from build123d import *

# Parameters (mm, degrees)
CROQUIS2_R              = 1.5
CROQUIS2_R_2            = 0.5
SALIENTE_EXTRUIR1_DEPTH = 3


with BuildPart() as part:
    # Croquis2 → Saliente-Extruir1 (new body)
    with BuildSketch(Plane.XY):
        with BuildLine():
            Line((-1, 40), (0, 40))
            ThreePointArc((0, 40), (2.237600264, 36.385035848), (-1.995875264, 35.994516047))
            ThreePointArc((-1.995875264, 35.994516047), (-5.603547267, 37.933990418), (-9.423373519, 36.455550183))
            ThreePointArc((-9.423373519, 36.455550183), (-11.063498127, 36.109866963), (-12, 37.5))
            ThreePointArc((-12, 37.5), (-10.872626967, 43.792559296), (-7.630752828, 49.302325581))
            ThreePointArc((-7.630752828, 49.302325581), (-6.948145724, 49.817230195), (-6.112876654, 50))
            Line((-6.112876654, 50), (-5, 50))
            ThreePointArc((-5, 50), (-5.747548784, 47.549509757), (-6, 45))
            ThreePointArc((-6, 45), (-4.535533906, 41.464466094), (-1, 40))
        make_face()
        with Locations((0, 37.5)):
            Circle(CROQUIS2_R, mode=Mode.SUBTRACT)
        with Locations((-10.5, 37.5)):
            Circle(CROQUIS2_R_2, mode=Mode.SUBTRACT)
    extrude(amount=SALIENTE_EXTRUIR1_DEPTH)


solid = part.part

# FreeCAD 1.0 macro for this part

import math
import FreeCAD as App
import Part
import Sketcher
from FreeCAD import Vector
Q = App.Units.Quantity

doc = App.newDocument("Part")
body = doc.addObject("PartDesign::Body", "Body")

sketch1 = body.newObject("Sketcher::SketchObject", "Sketch")
sketch1.AttachmentSupport = (doc.getObject("XY_Plane"), [""])
sketch1.MapMode = "FlatFace"
sketch1.addGeometry(Part.LineSegment(Vector(0, 40, 0), Vector(-1, 40, 0)), False)
sketch1.addGeometry(Part.ArcOfCircle(Part.Circle(Vector(-1, 45, 0), Vector(0, 0, 1), 5), math.radians(180), math.radians(270)), False)
sketch1.addGeometry(Part.ArcOfCircle(Part.Circle(Vector(7, 45, 0), Vector(0, 0, 1), 13), math.radians(157), math.radians(180)), False)
sketch1.addGeometry(Part.LineSegment(Vector(-5, 50, 0), Vector(-6.1, 50, 0)), False)
sketch1.addGeometry(Part.ArcOfCircle(Part.Circle(Vector(-6.1, 48, 0), Vector(0, 0, 1), 2), math.radians(90), math.radians(139)), False)
sketch1.addGeometry(Part.ArcOfCircle(Part.Circle(Vector(6.1, 37.5, 0), Vector(0, 0, 1), 18.1), math.radians(139), math.radians(180)), False)
sketch1.addGeometry(Part.ArcOfCircle(Part.Circle(Vector(-10.5, 37.5, 0), Vector(0, 0, 1), 1.5), math.radians(180), math.radians(316)), False)
sketch1.addGeometry(Part.ArcOfCircle(Part.Circle(Vector(-5.9, 33, 0), Vector(0, 0, 1), 4.9), math.radians(37), math.radians(136)), False)
sketch1.addGeometry(Part.ArcOfCircle(Part.Circle(Vector(0, 37.5, 0), Vector(0, 0, 1), 2.5), math.radians(-143), math.radians(90)), False)
sketch1.addGeometry(Part.Circle(Vector(0, 37.5, 0), Vector(0, 0, 1), 1.5), False)
sketch1.addGeometry(Part.Circle(Vector(-10.5, 37.5, 0), Vector(0, 0, 1), 0.5), False)
sketch1.addConstraint(Sketcher.Constraint("Tangent", 0, 2, 1, 2))
sketch1.addConstraint(Sketcher.Constraint("Tangent", 1, 1, 2, 2))
sketch1.addConstraint(Sketcher.Constraint("Coincident", 2, 1, 3, 1))
sketch1.addConstraint(Sketcher.Constraint("Tangent", 3, 2, 4, 1))
sketch1.addConstraint(Sketcher.Constraint("Tangent", 4, 2, 5, 1))
sketch1.addConstraint(Sketcher.Constraint("Tangent", 5, 2, 6, 1))
sketch1.addConstraint(Sketcher.Constraint("Tangent", 6, 2, 7, 2))
sketch1.addConstraint(Sketcher.Constraint("Tangent", 7, 1, 8, 1))
sketch1.addConstraint(Sketcher.Constraint("Tangent", 8, 2, 0, 1))
sketch1.addConstraint(Sketcher.Constraint("Horizontal", 0))
sketch1.addConstraint(Sketcher.Constraint("Horizontal", 3))
sketch1.addConstraint(Sketcher.Constraint("Coincident", 9, 3, 8, 3))
sketch1.addConstraint(Sketcher.Constraint("Coincident", 10, 3, 6, 3))
sketch1.addConstraint(Sketcher.Constraint("Equal", 6, 9))
sketch1.addConstraint(Sketcher.Constraint("PointOnObject", 8, 3, -2))
sketch1.addConstraint(Sketcher.Constraint("Horizontal", 1, 3, 2, 3))
sketch1.addConstraint(Sketcher.Constraint("Horizontal", 5, 3, 6, 3))
sketch1.addConstraint(Sketcher.Constraint("Horizontal", 6, 3, 8, 3))
sketch1.addConstraint(Sketcher.Constraint("Diameter", 9, Q("3 mm")))
sketch1.addConstraint(Sketcher.Constraint("Diameter", 10, Q("1 mm")))
sketch1.addConstraint(Sketcher.Constraint("Radius", 1, Q("5 mm")))
sketch1.addConstraint(Sketcher.Constraint("Radius", 2, Q("13 mm")))
sketch1.addConstraint(Sketcher.Constraint("Radius", 4, Q("2 mm")))
sketch1.addConstraint(Sketcher.Constraint("Radius", 8, Q("2.5 mm")))
sketch1.addConstraint(Sketcher.Constraint("DistanceX", 0, 2, 0, 1, Q("1 mm")))
sketch1.addConstraint(Sketcher.Constraint("DistanceY", -1, 1, 1, 3, Q("45 mm")))
sketch1.addConstraint(Sketcher.Constraint("DistanceY", -1, 1, 4, 3, Q("48 mm")))
sketch1.addConstraint(Sketcher.Constraint("DistanceX", 5, 2, -1, 1, Q("12 mm")))
sketch1.addConstraint(Sketcher.Constraint("Radius", 5, Q("18.125 mm")))
sketch1.addConstraint(Sketcher.Constraint("Radius", 7, Q("4.899078 mm")))
pad1 = body.newObject("PartDesign::Pad", "Pad")
pad1.Profile = sketch1
pad1.Length = 3

doc.recompute()
